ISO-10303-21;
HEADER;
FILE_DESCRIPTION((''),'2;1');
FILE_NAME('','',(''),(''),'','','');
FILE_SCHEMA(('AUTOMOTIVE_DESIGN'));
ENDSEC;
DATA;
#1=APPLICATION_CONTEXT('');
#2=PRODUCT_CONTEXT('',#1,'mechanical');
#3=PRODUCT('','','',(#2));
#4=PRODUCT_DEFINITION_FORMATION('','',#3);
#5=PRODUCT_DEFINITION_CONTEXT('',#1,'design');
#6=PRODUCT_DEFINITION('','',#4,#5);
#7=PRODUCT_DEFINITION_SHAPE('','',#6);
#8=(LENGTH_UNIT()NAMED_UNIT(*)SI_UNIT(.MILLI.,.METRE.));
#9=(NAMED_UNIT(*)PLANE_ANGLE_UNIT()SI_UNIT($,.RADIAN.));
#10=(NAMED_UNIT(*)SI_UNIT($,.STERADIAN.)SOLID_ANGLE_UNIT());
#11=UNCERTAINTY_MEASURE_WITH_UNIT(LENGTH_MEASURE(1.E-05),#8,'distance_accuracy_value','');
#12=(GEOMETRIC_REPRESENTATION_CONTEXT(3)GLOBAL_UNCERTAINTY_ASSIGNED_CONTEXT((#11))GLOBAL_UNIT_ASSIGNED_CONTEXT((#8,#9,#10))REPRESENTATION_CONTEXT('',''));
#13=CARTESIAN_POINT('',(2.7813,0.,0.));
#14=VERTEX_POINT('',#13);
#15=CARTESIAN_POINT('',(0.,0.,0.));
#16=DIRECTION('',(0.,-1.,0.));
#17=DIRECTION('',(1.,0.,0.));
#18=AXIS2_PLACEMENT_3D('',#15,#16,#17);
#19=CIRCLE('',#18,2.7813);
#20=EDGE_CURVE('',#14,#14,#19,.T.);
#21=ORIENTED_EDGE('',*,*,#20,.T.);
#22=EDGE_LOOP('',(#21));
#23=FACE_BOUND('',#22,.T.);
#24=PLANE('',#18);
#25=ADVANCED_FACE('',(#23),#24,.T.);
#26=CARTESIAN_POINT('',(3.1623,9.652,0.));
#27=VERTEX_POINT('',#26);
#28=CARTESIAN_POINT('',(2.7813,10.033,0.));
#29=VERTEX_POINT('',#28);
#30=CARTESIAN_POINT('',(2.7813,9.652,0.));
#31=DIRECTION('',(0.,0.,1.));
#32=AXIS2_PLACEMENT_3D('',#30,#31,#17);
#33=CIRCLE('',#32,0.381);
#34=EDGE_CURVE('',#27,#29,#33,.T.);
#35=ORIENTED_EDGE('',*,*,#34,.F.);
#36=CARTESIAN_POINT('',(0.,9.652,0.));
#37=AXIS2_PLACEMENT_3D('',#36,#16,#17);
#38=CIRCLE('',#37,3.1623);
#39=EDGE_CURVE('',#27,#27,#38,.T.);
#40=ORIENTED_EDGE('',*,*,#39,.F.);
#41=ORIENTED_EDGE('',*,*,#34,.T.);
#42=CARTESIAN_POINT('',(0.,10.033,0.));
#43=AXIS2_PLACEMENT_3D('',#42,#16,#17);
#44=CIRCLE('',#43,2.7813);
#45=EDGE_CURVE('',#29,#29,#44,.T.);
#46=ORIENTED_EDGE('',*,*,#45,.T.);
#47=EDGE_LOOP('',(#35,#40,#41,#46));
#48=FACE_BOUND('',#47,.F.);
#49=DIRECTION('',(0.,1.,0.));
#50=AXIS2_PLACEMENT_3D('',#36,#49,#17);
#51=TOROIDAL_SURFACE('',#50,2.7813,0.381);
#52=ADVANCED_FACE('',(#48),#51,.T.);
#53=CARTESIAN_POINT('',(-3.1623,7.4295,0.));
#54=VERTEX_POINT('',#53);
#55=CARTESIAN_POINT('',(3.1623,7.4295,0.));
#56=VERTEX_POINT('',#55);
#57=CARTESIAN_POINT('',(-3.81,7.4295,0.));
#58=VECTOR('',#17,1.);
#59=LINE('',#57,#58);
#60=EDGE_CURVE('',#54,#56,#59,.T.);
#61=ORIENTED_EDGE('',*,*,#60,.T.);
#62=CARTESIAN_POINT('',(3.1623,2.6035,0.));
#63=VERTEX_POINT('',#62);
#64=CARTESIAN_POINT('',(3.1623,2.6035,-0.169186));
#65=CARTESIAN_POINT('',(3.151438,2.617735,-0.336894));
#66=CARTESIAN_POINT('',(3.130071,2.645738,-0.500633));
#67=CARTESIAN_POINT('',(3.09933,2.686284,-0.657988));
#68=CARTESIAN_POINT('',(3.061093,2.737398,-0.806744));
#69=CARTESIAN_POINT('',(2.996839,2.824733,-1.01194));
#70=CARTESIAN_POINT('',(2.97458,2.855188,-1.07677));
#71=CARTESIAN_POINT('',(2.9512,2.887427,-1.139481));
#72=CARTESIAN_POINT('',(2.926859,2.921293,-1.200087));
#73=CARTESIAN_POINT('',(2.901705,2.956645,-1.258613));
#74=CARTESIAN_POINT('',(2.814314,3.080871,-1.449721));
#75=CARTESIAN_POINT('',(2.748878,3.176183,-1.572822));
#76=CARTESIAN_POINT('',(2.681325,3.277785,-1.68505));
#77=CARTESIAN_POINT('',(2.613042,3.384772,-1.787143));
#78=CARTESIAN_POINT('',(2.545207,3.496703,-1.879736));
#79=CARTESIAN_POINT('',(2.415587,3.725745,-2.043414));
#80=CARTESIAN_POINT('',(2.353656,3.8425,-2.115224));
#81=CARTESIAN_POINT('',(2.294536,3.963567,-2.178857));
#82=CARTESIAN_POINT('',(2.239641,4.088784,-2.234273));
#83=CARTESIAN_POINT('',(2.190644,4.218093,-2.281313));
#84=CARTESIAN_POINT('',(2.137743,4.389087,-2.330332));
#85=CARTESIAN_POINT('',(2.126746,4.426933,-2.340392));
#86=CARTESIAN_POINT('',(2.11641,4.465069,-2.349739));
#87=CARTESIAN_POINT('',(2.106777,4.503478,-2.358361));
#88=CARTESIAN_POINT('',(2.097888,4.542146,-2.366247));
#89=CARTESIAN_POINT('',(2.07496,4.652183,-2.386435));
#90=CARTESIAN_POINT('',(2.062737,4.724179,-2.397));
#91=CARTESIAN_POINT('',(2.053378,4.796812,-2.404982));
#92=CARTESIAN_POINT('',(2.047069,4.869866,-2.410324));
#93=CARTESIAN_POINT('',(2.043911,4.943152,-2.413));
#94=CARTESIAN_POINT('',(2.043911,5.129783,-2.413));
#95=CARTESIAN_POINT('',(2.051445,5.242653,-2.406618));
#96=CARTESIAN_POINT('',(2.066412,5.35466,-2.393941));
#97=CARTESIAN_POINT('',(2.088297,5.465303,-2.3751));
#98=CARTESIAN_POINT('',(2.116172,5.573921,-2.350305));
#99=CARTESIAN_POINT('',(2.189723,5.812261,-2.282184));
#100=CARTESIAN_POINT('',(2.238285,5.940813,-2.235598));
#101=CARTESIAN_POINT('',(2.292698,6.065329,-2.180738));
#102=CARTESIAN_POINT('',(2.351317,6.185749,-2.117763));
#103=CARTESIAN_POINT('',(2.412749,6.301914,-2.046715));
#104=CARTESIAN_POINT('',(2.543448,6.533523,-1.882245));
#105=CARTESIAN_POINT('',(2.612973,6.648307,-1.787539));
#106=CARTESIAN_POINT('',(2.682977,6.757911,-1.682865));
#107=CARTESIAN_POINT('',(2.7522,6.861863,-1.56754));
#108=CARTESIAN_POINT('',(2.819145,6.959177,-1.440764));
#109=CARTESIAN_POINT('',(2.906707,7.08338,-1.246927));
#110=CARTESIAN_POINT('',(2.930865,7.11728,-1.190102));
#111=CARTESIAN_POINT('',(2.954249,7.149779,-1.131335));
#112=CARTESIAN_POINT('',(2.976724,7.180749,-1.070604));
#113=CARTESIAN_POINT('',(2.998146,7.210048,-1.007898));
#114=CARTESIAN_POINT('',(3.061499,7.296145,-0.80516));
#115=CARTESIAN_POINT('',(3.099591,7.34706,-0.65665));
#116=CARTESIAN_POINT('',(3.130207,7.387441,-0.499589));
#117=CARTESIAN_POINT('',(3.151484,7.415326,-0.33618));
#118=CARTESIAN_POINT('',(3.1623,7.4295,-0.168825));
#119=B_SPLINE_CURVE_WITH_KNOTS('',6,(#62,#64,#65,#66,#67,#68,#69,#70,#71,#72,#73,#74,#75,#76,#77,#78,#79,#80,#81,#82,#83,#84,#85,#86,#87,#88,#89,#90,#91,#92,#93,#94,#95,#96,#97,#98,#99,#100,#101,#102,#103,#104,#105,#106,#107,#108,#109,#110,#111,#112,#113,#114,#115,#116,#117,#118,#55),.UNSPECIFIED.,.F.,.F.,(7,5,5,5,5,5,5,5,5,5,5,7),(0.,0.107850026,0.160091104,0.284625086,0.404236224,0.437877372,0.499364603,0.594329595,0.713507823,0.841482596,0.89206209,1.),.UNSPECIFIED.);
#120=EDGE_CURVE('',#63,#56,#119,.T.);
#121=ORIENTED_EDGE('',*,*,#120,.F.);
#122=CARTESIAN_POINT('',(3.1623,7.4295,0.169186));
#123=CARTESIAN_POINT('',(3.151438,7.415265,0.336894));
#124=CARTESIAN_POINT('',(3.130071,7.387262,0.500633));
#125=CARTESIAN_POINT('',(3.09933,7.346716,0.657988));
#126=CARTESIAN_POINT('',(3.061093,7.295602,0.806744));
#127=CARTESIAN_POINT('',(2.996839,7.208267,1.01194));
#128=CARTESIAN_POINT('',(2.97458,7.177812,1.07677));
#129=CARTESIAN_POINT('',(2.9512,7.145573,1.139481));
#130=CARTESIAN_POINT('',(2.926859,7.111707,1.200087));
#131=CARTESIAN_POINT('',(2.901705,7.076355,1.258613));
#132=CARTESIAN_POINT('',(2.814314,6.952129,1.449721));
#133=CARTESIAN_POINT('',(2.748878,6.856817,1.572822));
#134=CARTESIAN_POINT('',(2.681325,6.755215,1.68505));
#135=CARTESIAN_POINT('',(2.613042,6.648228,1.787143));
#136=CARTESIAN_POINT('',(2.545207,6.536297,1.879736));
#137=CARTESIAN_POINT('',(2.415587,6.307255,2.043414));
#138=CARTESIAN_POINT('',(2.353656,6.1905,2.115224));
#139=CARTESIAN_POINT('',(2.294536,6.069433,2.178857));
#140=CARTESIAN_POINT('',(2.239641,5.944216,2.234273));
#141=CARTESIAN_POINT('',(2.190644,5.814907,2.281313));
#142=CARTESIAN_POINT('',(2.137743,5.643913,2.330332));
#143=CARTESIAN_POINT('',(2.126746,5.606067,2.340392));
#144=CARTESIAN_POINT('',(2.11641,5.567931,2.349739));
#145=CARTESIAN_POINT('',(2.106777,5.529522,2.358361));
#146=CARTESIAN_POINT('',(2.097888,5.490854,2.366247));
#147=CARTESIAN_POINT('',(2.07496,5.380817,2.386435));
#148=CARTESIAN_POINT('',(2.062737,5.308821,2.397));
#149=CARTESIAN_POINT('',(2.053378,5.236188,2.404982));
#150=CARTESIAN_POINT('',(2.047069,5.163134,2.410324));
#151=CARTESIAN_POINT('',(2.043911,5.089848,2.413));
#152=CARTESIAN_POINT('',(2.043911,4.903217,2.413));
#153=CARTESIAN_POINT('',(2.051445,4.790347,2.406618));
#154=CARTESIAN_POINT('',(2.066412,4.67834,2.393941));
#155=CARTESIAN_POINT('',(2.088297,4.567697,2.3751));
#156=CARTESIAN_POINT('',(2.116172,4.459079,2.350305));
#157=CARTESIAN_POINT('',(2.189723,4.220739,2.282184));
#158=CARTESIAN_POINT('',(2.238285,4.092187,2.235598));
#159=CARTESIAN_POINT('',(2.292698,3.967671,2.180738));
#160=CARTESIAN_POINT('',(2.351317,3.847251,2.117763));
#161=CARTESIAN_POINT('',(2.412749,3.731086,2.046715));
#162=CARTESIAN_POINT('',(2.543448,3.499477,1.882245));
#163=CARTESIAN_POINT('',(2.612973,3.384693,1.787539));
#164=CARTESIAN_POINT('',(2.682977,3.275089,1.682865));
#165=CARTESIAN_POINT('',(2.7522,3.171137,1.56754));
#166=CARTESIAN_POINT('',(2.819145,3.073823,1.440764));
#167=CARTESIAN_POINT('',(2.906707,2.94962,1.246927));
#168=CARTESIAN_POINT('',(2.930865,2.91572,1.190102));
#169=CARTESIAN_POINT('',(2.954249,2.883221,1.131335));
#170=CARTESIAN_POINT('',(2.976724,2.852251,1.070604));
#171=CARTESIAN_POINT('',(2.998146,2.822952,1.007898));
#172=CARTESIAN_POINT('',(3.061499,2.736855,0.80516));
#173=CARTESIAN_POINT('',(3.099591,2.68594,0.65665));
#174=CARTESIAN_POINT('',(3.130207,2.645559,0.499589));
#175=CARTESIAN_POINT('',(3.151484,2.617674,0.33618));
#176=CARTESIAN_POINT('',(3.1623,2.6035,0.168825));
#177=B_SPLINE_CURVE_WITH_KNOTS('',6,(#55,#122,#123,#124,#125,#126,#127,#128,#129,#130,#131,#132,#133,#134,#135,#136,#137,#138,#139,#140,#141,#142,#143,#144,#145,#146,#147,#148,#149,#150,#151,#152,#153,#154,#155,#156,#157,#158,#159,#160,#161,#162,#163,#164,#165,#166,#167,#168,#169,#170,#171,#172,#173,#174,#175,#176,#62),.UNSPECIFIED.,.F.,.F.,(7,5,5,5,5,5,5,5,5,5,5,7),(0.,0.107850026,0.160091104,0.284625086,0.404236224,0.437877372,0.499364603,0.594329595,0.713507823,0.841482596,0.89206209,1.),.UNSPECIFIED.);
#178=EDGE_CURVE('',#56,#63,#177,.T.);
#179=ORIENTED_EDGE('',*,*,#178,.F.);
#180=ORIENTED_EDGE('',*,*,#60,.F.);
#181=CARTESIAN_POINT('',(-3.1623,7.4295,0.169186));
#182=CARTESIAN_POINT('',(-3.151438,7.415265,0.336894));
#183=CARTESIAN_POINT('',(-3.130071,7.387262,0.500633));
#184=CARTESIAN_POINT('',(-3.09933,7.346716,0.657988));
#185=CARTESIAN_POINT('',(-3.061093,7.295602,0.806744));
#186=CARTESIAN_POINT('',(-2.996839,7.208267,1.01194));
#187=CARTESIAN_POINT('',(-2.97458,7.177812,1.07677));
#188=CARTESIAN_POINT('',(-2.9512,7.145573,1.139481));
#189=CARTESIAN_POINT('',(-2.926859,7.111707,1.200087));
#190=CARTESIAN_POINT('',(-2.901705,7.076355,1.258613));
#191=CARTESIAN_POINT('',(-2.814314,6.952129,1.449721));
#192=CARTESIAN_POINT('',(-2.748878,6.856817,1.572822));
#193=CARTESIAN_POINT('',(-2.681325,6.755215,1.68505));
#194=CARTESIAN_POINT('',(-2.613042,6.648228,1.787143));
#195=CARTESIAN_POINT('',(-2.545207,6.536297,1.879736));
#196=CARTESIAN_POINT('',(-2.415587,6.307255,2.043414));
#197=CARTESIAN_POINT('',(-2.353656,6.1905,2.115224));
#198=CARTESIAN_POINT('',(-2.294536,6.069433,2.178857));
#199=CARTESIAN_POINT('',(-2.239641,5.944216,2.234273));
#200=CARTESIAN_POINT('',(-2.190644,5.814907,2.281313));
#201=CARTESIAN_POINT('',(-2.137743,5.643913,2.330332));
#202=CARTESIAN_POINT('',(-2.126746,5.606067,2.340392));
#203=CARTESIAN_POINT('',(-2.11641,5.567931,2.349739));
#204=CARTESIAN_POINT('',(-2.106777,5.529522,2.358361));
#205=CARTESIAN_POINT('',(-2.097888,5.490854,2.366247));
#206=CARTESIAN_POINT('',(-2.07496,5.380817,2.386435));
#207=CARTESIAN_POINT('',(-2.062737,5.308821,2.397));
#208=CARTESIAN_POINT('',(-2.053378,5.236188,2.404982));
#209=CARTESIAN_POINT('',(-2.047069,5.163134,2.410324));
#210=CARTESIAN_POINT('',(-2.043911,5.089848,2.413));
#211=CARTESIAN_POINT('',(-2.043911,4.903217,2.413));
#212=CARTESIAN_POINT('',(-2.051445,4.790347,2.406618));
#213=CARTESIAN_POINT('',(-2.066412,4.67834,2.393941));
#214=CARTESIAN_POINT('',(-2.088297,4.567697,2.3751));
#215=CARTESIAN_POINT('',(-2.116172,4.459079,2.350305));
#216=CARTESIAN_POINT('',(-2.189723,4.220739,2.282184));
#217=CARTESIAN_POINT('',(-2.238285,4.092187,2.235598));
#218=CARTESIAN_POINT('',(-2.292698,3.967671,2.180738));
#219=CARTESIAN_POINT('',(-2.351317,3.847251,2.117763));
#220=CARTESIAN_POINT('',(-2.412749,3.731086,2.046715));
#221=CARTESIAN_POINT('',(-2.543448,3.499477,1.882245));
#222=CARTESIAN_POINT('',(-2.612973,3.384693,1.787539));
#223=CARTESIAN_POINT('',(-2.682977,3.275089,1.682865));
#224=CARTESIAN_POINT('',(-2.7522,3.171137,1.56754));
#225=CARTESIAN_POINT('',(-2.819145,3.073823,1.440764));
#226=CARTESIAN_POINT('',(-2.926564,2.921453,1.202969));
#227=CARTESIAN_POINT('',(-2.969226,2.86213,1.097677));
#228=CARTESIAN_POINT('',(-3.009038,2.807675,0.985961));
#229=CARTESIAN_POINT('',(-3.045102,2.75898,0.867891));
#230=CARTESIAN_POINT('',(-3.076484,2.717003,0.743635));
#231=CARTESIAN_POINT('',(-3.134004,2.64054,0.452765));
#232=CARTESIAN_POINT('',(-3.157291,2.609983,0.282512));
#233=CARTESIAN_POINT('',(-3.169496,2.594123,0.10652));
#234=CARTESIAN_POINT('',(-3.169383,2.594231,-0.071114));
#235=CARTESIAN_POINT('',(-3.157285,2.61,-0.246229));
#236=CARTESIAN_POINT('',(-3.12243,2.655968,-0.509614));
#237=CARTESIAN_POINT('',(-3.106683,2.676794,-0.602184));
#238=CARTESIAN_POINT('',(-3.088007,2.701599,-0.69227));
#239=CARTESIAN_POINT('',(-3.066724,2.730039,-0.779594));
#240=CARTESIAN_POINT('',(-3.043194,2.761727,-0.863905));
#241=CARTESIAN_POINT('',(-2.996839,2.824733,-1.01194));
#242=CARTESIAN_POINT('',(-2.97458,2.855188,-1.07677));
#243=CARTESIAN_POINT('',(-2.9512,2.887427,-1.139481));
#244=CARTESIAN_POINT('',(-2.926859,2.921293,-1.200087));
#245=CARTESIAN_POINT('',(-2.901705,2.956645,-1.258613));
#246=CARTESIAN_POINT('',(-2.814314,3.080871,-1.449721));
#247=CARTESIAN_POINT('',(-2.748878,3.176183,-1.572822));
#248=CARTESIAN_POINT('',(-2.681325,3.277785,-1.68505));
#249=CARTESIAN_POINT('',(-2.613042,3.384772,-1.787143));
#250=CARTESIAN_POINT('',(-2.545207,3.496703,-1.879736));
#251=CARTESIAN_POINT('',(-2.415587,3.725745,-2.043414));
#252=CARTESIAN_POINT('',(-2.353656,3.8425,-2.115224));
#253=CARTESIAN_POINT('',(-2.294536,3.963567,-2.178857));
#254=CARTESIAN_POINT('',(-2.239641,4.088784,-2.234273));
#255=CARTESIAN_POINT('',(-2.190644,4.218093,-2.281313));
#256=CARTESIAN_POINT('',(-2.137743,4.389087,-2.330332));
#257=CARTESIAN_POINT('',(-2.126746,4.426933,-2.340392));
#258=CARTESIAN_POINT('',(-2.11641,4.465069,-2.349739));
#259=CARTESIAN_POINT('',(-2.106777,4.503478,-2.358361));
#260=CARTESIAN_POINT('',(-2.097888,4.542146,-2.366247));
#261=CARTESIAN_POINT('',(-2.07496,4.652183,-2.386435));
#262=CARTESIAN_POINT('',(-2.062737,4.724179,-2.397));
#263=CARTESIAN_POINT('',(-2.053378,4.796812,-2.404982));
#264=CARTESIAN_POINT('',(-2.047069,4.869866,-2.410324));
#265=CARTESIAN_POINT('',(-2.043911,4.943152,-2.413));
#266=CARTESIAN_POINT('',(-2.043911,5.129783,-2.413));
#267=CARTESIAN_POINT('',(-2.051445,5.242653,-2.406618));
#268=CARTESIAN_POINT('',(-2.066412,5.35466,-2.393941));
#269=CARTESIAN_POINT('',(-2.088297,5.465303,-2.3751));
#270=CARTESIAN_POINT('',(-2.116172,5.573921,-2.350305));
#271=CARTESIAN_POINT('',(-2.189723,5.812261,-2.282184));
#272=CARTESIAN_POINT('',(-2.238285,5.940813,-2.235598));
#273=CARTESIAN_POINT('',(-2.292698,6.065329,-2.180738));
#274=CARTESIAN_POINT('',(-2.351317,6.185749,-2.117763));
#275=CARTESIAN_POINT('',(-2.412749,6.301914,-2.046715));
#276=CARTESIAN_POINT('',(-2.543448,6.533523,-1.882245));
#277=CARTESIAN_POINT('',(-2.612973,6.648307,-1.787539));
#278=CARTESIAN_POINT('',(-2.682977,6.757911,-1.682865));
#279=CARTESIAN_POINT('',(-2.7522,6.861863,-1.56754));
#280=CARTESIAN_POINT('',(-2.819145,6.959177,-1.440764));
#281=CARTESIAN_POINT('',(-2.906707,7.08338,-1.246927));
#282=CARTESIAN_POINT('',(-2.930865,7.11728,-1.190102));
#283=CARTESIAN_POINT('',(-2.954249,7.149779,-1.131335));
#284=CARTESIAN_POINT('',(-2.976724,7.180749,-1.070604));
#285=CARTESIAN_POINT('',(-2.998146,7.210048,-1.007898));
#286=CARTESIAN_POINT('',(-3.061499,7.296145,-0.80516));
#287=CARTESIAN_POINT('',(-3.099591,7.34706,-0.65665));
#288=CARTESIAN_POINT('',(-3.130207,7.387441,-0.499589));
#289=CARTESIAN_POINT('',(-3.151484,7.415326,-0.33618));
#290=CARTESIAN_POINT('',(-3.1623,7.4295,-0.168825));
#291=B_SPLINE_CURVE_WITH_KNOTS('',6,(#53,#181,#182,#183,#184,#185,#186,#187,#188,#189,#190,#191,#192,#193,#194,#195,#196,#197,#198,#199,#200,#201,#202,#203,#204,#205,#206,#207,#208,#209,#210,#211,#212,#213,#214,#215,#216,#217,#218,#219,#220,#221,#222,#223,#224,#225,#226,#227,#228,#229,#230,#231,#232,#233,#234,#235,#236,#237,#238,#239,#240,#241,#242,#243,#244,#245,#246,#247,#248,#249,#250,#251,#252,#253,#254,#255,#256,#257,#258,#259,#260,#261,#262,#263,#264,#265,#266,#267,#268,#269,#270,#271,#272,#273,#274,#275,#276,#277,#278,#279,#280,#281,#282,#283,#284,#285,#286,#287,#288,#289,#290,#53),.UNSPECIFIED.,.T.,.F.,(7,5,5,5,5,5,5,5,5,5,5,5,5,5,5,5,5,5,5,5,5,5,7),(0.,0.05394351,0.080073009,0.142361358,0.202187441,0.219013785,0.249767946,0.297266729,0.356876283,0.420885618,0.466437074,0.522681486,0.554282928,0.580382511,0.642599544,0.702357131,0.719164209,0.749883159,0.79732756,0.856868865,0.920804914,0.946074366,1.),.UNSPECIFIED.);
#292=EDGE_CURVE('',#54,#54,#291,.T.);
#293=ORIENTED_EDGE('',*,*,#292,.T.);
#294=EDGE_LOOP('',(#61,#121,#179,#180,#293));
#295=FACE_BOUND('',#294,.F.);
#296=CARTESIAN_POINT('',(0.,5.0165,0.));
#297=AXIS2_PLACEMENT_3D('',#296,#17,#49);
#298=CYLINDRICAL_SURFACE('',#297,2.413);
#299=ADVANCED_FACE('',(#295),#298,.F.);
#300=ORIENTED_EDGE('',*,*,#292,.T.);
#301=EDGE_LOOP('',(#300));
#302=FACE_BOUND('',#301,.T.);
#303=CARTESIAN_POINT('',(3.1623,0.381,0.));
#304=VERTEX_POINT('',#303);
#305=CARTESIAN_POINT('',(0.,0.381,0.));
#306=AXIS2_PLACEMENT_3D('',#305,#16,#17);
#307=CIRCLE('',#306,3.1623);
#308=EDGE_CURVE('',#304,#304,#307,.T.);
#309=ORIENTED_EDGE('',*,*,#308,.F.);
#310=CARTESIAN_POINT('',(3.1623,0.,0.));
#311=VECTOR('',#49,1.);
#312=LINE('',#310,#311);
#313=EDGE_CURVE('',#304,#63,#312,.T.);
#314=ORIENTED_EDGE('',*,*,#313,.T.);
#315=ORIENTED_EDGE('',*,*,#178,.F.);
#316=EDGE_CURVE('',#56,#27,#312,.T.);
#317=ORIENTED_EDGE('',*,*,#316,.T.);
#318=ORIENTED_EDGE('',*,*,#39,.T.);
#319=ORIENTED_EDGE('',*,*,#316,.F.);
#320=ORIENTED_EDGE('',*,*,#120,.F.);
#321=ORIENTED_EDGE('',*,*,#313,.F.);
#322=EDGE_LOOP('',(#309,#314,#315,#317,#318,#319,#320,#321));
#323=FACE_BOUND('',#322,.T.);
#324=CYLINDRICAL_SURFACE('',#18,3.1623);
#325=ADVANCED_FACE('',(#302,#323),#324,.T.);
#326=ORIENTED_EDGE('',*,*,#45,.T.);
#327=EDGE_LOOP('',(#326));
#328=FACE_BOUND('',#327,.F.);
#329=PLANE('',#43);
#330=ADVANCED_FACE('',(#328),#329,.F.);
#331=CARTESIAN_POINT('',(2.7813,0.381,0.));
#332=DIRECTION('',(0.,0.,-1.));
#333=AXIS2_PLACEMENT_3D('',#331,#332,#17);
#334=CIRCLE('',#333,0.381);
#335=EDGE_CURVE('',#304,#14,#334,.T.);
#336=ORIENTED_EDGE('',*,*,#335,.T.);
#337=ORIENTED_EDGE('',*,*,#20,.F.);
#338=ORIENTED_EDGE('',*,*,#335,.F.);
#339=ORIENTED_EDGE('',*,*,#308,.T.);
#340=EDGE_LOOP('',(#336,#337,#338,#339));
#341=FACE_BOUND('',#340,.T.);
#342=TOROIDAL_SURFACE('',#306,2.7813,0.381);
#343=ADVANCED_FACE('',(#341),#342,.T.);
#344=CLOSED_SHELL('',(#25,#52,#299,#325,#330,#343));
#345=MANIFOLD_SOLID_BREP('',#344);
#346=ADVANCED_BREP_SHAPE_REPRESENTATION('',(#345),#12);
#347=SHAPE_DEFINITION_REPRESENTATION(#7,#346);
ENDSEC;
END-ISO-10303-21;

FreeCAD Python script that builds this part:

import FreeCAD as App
import Part
import Sketcher
Q = App.Units.Quantity


def edges_at(feature, points):
    """Names of the edges that pass closest to the given points."""
    edges = feature.Shape.Edges
    near = lambda p: min(range(len(edges)), key=lambda i: edges[i].distToShape(Part.Vertex(*p))[0])
    return sorted({f"Edge{near(p) + 1}" for p in points})

doc = App.newDocument("Part")
body = doc.addObject("PartDesign::Body", "Body")

sketch1 = doc.addObject("Sketcher::SketchObject", "Sketch")
body.addObject(sketch1)
sketch1.AttachmentSupport = (doc.XZ_Plane, [""])
sketch1.MapMode = "FlatFace"
sketch1.addGeometry(Part.Circle(App.Vector(0, 0, 0), App.Vector(0, 0, 1), 3.2), False)
sketch1.addConstraint(Sketcher.Constraint("Coincident", 0, 3, -1, 1))
sketch1.addConstraint(Sketcher.Constraint("Diameter", 0, Q("0.249 in")))
pad1 = doc.addObject("PartDesign::Pad", "Pad")
body.addObject(pad1)
pad1.Profile = sketch1
pad1.Length = Q("0.395 in")
pad1.Reversed = True

sketch2 = doc.addObject("Sketcher::SketchObject", "Sketch001")
body.addObject(sketch2)
sketch2.AttachmentSupport = (doc.YZ_Plane, [""])
sketch2.MapMode = "FlatFace"
sketch2.addGeometry(Part.Circle(App.Vector(5, 0, 0), App.Vector(0, 0, 1), 2.4), False)
sketch2.addConstraint(Sketcher.Constraint("PointOnObject", 0, 3, -1))
sketch2.addConstraint(Sketcher.Constraint("Diameter", 0, Q("0.19 in")))
sketch2.addConstraint(Sketcher.Constraint("DistanceX", -1, 1, 0, 3, Q("0.1975 in")))
pocket1 = doc.addObject("PartDesign::Pocket", "Pocket")
body.addObject(pocket1)
pocket1.Profile = sketch2
pocket1.Length = Q("0.3 in")
pocket1.Midplane = True
doc.recompute()

fillet = doc.addObject("PartDesign::Fillet", "Fillet")
body.addObject(fillet)
fillet.Base = (pocket1, edges_at(pocket1, [(-3.162, 10.033, 0), (-3.162, 0, 0)]))
fillet.Radius = Q("0.015 in")

doc.recompute()
